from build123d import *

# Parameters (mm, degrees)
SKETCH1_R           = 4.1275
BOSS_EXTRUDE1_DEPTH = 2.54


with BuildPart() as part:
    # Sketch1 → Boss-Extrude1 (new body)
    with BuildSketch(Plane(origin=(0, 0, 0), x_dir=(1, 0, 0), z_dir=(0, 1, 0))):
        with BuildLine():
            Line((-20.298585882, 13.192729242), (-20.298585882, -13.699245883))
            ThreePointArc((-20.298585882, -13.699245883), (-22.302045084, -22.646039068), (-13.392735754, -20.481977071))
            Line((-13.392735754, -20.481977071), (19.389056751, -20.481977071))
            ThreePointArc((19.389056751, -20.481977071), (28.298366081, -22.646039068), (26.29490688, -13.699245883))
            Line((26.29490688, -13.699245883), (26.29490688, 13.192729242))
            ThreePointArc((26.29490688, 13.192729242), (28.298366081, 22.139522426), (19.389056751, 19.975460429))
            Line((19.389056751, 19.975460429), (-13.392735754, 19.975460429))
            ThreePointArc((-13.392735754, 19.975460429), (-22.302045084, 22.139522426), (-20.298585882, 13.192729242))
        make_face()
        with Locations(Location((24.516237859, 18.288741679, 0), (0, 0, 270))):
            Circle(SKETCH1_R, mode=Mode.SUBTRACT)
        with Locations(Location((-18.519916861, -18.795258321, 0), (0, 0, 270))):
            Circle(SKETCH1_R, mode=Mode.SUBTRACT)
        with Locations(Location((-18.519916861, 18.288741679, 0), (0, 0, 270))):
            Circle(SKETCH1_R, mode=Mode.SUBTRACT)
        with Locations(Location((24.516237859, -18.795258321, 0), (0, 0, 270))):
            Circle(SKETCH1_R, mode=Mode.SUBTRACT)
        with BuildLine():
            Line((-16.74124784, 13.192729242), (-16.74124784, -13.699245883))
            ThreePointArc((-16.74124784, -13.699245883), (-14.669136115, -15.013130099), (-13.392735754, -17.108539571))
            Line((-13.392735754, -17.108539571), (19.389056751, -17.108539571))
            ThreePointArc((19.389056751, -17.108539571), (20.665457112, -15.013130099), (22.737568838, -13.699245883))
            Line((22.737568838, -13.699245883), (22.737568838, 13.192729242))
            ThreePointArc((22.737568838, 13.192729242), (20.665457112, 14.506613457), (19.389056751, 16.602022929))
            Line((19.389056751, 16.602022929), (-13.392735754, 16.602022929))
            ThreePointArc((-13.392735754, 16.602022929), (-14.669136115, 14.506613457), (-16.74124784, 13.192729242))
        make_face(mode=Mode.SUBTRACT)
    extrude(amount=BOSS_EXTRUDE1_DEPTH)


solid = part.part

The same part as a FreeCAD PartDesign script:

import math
import FreeCAD as App
import Part
import Sketcher

V = App.Vector
Q = App.Units.Quantity

doc = App.newDocument("Part")
params = doc.addObject("Spreadsheet::Sheet", "Params")
for row, (alias, value) in enumerate([
    ("sketch1_diameter", "0.325 in"),
    ("pad1_length", "0.1 in"),
], start=1):
    params.set(f"A{row}", alias)
    params.set(f"B{row}", "=" + value)
    params.setAlias(f"B{row}", alias)

body = doc.addObject("PartDesign::Body", "Body")

# Sketch on XZ plane
sketch1 = body.newObject("Sketcher::SketchObject", "Sketch")
sketch1.AttachmentSupport = (doc.getObject("XZ_Plane"), [""])
sketch1.MapMode = "FlatFace"
sketch1.addGeometry(Part.LineSegment(V(-20.3, -13.2, 0), V(-20.3, 13.7, 0)), False)
sketch1.addGeometry(Part.ArcOfCircle(Part.Circle(V(-18.5, 18.8, 0), V(0, 0, 1), 5.4), math.radians(18), math.radians(251)), False)
sketch1.addGeometry(Part.LineSegment(V(-13.4, 20.5, 0), V(19.4, 20.5, 0)), False)
sketch1.addGeometry(Part.ArcOfCircle(Part.Circle(V(24.5, 18.8, 0), V(0, 0, 1), 5.4), math.radians(-71), math.radians(162)), False)
sketch1.addGeometry(Part.LineSegment(V(26.3, 13.7, 0), V(26.3, -13.2, 0)), False)
sketch1.addGeometry(Part.ArcOfCircle(Part.Circle(V(24.5, -18.3, 0), V(0, 0, 1), 5.4), math.radians(-162), math.radians(71)), False)
sketch1.addGeometry(Part.LineSegment(V(19.4, -20, 0), V(-13.4, -20, 0)), False)
sketch1.addGeometry(Part.ArcOfCircle(Part.Circle(V(-18.5, -18.3, 0), V(0, 0, 1), 5.4), math.radians(109), math.radians(342)), False)
sketch1.addGeometry(Part.Circle(V(-18.5, 18.8, 0), V(0, 0, 1), 4.1), False)
sketch1.addGeometry(Part.Circle(V(24.5, 18.8, 0), V(0, 0, 1), 4.1), False)
sketch1.addGeometry(Part.LineSegment(V(-16.7, 13.7, 0), V(-16.7, -13.2, 0)), False)
sketch1.addGeometry(Part.ArcOfCircle(Part.Circle(V(-18.5, -18.3, 0), V(0, 0, 1), 5.4), math.radians(18), math.radians(71)), False)
sketch1.addGeometry(Part.LineSegment(V(-13.4, -16.6, 0), V(19.4, -16.6, 0)), False)
sketch1.addGeometry(Part.ArcOfCircle(Part.Circle(V(24.5, -18.3, 0), V(0, 0, 1), 5.4), math.radians(109), math.radians(162)), False)
sketch1.addGeometry(Part.LineSegment(V(22.7, -13.2, 0), V(22.7, 13.7, 0)), False)
sketch1.addGeometry(Part.ArcOfCircle(Part.Circle(V(24.5, 18.8, 0), V(0, 0, 1), 5.4), math.radians(-162), math.radians(-109)), False)
sketch1.addGeometry(Part.LineSegment(V(19.4, 17.1, 0), V(-13.4, 17.1, 0)), False)
sketch1.addGeometry(Part.ArcOfCircle(Part.Circle(V(-18.5, 18.8, 0), V(0, 0, 1), 5.4), math.radians(-71), math.radians(-18)), False)
sketch1.addGeometry(Part.Circle(V(-18.5, -18.3, 0), V(0, 0, 1), 4.1), False)
sketch1.addGeometry(Part.Circle(V(24.5, -18.3, 0), V(0, 0, 1), 4.1), False)
sketch1.addConstraint(Sketcher.Constraint("Coincident", 0, 2, 1, 2))
sketch1.addConstraint(Sketcher.Constraint("Coincident", 1, 1, 2, 1))
sketch1.addConstraint(Sketcher.Constraint("Coincident", 2, 2, 3, 2))
sketch1.addConstraint(Sketcher.Constraint("Coincident", 3, 1, 4, 1))
sketch1.addConstraint(Sketcher.Constraint("Coincident", 4, 2, 5, 2))
sketch1.addConstraint(Sketcher.Constraint("Coincident", 5, 1, 6, 1))
sketch1.addConstraint(Sketcher.Constraint("Coincident", 6, 2, 7, 2))
sketch1.addConstraint(Sketcher.Constraint("Coincident", 7, 1, 0, 1))
sketch1.addConstraint(Sketcher.Constraint("Coincident", 10, 2, 11, 2))
sketch1.addConstraint(Sketcher.Constraint("Coincident", 11, 1, 12, 1))
sketch1.addConstraint(Sketcher.Constraint("Coincident", 12, 2, 13, 2))
sketch1.addConstraint(Sketcher.Constraint("Coincident", 13, 1, 14, 1))
sketch1.addConstraint(Sketcher.Constraint("Coincident", 14, 2, 15, 2))
sketch1.addConstraint(Sketcher.Constraint("Coincident", 15, 1, 16, 1))
sketch1.addConstraint(Sketcher.Constraint("Coincident", 16, 2, 17, 2))
sketch1.addConstraint(Sketcher.Constraint("Coincident", 17, 1, 10, 1))
sketch1.addConstraint(Sketcher.Constraint("Vertical", 0))
sketch1.addConstraint(Sketcher.Constraint("Horizontal", 2))
sketch1.addConstraint(Sketcher.Constraint("Vertical", 4))
sketch1.addConstraint(Sketcher.Constraint("Horizontal", 6))
sketch1.addConstraint(Sketcher.Constraint("Vertical", 10))
sketch1.addConstraint(Sketcher.Constraint("Horizontal", 12))
sketch1.addConstraint(Sketcher.Constraint("Vertical", 14))
sketch1.addConstraint(Sketcher.Constraint("Horizontal", 16))
sketch1.addConstraint(Sketcher.Constraint("Coincident", 8, 3, 1, 3))
sketch1.addConstraint(Sketcher.Constraint("Coincident", 9, 3, 3, 3))
sketch1.addConstraint(Sketcher.Constraint("Coincident", 11, 3, 7, 3))
sketch1.addConstraint(Sketcher.Constraint("Coincident", 13, 3, 5, 3))
sketch1.addConstraint(Sketcher.Constraint("Coincident", 15, 3, 3, 3))
sketch1.addConstraint(Sketcher.Constraint("Coincident", 17, 3, 1, 3))
sketch1.addConstraint(Sketcher.Constraint("Coincident", 18, 3, 7, 3))
sketch1.addConstraint(Sketcher.Constraint("Coincident", 19, 3, 5, 3))
sketch1.addConstraint(Sketcher.Constraint("Equal", 1, 3))
sketch1.addConstraint(Sketcher.Constraint("Equal", 3, 5))
sketch1.addConstraint(Sketcher.Constraint("Equal", 5, 7))
sketch1.addConstraint(Sketcher.Constraint("Equal", 8, 9))
sketch1.addConstraint(Sketcher.Constraint("Equal", 7, 11))
sketch1.addConstraint(Sketcher.Constraint("Equal", 11, 13))
sketch1.addConstraint(Sketcher.Constraint("Equal", 13, 15))
sketch1.addConstraint(Sketcher.Constraint("Equal", 15, 17))
sketch1.addConstraint(Sketcher.Constraint("Equal", 9, 18))
sketch1.addConstraint(Sketcher.Constraint("Equal", 18, 19))
sketch1.addConstraint(Sketcher.Constraint("Horizontal", 1, 3, 3, 3))
sketch1.addConstraint(Sketcher.Constraint("Horizontal", 5, 3, 7, 3))
sketch1.addConstraint(Sketcher.Constraint("Horizontal", 0, 2, 3, 1))
sketch1.addConstraint(Sketcher.Constraint("Horizontal", 4, 2, 7, 1))
sketch1.addConstraint(Sketcher.Constraint("Horizontal", 7, 1, 10, 2))
sketch1.addConstraint(Sketcher.Constraint("Horizontal", 10, 2, 13, 1))
sketch1.addConstraint(Sketcher.Constraint("Horizontal", 3, 1, 14, 2))
sketch1.addConstraint(Sketcher.Constraint("Vertical", 2, 2, 5, 1))
sketch1.addConstraint(Sketcher.Constraint("Vertical", 6, 2, 11, 1))
sketch1.addConstraint(Sketcher.Constraint("Vertical", 12, 2, 15, 1))
sketch1.addConstraint(Sketcher.Constraint("Diameter", 8, Q("0.325 in")))
sketch1.addConstraint(Sketcher.Constraint("Radius", 1, Q("0.2125 in")))
sketch1.addConstraint(Sketcher.Constraint("DistanceY", 5, 3, 3, 3, Q("1.46 in")))
sketch1.addConstraint(Sketcher.Constraint("DistanceX", 2, 1, 2, 2, 32.781793))
sketch1.addConstraint(Sketcher.Constraint("DistanceY", 0, 1, 0, 2, 26.891975))
sketch1.addConstraint(Sketcher.Constraint("DistanceY", -1, 1, 1, 3, 18.795258))
sketch1.addConstraint(Sketcher.Constraint("DistanceY", 5, 1, -1, 1, 19.97546))
sketch1.addConstraint(Sketcher.Constraint("DistanceX", -1, 1, 13, 1, 22.737569))
sketch1.setExpression("Constraints[52]", "Params.sketch1_diameter")
pad1 = body.newObject("PartDesign::Pad", "Pad")
pad1.Profile = sketch1
pad1.setExpression("Length", "Params.pad1_length")
pad1.Reversed = True

doc.recompute()
